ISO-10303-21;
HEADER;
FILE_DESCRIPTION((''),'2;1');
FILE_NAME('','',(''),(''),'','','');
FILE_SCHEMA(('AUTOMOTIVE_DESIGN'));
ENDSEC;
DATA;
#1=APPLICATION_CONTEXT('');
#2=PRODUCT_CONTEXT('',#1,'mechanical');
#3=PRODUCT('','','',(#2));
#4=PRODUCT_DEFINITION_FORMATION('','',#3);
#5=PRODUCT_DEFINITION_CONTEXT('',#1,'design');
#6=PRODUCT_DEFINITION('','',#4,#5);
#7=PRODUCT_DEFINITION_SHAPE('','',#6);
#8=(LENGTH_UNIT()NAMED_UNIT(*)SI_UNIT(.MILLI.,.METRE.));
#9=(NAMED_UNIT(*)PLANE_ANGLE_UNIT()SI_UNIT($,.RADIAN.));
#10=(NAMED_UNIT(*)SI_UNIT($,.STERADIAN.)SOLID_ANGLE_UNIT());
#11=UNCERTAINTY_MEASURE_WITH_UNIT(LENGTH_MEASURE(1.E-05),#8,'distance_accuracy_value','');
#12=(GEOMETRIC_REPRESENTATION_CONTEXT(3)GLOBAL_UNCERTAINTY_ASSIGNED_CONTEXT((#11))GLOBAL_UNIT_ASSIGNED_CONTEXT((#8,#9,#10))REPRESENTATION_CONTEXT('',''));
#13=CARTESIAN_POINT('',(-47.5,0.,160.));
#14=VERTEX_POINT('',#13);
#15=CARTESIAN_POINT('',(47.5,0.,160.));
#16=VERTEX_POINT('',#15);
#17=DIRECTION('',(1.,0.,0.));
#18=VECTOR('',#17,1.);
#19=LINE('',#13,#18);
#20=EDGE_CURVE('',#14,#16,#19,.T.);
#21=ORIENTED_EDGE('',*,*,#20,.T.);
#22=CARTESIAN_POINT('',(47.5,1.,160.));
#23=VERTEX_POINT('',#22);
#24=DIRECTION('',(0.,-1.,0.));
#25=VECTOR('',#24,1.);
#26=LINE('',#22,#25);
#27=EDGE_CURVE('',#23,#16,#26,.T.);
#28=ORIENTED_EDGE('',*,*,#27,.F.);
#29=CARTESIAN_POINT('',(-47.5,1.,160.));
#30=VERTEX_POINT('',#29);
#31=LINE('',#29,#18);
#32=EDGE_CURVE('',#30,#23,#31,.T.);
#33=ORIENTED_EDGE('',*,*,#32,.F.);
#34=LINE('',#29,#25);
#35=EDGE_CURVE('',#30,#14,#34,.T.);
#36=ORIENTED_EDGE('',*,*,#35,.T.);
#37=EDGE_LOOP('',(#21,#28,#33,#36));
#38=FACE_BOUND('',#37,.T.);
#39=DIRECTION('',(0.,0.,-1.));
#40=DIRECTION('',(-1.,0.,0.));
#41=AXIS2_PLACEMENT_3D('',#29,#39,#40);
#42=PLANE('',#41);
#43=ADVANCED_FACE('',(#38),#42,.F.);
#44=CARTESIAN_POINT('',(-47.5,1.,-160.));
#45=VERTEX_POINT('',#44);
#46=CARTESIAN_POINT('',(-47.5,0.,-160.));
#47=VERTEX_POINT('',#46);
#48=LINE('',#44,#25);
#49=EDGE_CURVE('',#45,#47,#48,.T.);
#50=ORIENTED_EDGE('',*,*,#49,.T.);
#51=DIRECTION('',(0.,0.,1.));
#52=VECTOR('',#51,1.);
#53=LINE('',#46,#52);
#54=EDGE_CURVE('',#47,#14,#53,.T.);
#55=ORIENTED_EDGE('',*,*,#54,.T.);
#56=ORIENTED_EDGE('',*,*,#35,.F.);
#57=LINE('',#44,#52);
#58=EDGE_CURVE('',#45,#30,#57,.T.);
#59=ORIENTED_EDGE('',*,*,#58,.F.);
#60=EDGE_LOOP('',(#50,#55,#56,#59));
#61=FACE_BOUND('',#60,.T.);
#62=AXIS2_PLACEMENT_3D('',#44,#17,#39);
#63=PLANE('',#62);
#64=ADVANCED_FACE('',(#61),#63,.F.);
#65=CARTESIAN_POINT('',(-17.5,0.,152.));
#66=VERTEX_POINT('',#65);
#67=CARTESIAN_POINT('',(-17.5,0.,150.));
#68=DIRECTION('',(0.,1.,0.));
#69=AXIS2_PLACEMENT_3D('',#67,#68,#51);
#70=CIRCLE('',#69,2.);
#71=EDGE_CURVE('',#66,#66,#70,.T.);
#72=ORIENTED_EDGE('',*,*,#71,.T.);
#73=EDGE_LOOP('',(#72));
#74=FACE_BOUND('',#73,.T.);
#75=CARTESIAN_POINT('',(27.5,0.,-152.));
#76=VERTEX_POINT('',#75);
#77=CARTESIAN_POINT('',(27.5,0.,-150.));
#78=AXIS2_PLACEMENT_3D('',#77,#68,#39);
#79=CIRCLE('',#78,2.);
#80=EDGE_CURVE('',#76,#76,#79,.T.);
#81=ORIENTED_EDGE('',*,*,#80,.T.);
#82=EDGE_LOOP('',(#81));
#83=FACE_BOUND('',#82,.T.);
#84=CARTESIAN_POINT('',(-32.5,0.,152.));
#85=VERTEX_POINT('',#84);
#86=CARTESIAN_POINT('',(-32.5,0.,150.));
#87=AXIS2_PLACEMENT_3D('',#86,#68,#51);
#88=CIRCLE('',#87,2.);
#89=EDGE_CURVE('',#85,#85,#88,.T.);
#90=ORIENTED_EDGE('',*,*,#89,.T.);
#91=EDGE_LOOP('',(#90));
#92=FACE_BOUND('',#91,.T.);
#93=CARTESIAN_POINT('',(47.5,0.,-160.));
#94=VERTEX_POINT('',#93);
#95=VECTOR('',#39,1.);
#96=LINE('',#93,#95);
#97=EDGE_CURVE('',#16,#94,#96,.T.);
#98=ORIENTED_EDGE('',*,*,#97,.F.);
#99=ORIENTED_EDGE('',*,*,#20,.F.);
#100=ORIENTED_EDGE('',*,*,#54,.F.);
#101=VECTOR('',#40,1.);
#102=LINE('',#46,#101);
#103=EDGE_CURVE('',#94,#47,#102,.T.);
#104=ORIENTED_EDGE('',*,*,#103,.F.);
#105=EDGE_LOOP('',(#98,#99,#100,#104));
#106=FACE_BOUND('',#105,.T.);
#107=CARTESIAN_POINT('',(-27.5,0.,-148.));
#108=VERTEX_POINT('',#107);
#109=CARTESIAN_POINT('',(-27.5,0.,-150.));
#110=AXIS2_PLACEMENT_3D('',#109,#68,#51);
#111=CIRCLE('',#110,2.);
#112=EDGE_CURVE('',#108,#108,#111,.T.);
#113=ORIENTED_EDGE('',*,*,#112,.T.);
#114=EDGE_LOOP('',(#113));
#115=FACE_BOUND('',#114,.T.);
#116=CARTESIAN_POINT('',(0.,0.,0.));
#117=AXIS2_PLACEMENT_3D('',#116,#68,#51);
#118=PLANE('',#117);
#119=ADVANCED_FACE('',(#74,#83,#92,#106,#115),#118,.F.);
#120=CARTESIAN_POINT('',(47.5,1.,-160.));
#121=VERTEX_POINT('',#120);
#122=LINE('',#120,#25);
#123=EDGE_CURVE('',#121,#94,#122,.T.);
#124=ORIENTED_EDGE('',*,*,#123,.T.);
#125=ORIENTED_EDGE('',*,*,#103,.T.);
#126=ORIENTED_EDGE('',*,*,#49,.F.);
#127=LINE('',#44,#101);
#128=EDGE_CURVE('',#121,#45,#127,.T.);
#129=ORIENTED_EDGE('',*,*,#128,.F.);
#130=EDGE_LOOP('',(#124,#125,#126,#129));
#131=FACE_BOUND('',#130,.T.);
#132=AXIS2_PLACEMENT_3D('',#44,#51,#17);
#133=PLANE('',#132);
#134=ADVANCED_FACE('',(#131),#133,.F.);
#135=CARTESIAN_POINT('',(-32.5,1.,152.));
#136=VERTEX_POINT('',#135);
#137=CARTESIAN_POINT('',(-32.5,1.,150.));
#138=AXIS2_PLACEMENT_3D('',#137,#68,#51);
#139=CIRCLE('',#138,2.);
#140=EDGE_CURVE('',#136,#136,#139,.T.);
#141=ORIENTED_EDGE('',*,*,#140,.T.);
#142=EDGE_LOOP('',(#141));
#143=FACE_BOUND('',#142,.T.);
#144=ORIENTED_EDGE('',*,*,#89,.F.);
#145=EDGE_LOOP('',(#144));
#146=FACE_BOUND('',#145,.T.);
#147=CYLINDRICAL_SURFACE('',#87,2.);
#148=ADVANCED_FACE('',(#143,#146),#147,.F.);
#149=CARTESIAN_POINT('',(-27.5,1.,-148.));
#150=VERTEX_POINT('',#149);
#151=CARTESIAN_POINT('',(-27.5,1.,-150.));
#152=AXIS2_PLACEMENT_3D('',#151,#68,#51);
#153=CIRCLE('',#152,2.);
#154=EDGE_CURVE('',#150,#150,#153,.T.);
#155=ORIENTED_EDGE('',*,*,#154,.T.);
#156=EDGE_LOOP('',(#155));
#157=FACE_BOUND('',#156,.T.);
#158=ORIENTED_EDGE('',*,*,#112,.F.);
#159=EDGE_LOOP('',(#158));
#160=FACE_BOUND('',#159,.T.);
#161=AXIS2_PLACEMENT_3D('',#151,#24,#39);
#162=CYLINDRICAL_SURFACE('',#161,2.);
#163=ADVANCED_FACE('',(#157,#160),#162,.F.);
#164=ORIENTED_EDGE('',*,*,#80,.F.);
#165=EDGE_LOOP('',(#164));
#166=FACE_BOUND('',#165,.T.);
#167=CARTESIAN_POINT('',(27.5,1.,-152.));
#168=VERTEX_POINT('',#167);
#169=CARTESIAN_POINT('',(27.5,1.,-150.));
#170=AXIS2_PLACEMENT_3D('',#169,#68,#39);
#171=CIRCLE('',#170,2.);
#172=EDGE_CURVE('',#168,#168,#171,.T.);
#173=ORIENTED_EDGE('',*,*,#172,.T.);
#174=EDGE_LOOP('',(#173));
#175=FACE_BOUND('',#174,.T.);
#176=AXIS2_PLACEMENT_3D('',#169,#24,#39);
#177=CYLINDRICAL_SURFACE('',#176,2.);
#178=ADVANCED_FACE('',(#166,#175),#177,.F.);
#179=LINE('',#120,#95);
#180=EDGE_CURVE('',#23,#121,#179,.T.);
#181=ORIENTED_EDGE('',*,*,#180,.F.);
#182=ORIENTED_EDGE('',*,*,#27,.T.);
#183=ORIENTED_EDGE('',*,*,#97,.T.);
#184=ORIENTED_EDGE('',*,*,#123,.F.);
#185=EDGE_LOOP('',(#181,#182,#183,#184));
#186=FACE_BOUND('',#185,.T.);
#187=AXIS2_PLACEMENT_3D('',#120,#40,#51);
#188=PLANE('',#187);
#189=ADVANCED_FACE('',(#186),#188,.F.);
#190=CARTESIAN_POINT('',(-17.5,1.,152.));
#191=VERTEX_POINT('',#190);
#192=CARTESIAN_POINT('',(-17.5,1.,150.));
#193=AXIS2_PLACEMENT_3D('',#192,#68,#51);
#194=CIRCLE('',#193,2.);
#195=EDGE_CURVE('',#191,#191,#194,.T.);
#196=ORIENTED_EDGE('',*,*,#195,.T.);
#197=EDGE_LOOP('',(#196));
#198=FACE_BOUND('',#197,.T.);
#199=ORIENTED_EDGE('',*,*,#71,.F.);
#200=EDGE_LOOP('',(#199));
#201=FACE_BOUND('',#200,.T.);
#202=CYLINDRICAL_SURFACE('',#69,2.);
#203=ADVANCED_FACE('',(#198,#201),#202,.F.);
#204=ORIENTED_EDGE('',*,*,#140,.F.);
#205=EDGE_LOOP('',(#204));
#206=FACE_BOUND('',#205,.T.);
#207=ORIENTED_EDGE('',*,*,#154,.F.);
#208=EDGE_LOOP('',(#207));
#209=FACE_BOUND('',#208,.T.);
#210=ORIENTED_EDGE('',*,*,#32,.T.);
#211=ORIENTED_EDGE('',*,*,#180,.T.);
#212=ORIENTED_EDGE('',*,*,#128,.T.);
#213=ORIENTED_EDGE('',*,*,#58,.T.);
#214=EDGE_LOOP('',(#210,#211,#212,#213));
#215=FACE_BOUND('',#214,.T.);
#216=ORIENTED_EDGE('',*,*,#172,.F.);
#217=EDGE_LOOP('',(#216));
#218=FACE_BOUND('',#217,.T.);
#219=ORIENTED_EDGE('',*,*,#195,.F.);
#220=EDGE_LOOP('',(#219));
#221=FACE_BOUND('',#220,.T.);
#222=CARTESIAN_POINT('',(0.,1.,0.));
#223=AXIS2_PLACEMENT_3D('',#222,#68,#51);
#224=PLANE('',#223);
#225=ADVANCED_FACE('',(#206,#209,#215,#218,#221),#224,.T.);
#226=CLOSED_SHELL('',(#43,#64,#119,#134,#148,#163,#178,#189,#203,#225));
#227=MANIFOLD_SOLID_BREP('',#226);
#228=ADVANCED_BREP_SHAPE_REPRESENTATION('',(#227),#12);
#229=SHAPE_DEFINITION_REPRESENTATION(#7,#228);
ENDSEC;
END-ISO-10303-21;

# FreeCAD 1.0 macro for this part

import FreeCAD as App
import Part
import Sketcher
from FreeCAD import Vector

doc = App.newDocument("Part")
body = doc.addObject("PartDesign::Body", "Body")

# Sketch on XZ plane
sketch1 = body.newObject("Sketcher::SketchObject", "Sketch")
sketch1.AttachmentSupport = (doc.getObject("XZ_Plane"), [""])
sketch1.MapMode = "FlatFace"
sketch1.addGeometry([
    Part.LineSegment(Vector(-47.5, -160, 0), Vector(-47.5, 160, 0)),  # 0
    Part.LineSegment(Vector(-47.5, 160, 0), Vector(47.5, 160, 0)),  # 1
    Part.LineSegment(Vector(47.5, 160, 0), Vector(47.5, -160, 0)),  # 2
    Part.LineSegment(Vector(47.5, -160, 0), Vector(-47.5, -160, 0)),  # 3
    Part.Circle(Vector(-27.5, -150, 0), Vector(0, 0, 1), 2),  # 4
    Part.Circle(Vector(27.5, -150, 0), Vector(0, 0, 1), 2),  # 5
], False)
sketch1.addConstraint([
    Sketcher.Constraint("Coincident", 0, 2, 1, 1),
    Sketcher.Constraint("Coincident", 1, 2, 2, 1),
    Sketcher.Constraint("Coincident", 2, 2, 3, 1),
    Sketcher.Constraint("Coincident", 3, 2, 0, 1),
    Sketcher.Constraint("Vertical", 0),
    Sketcher.Constraint("Horizontal", 1),
    Sketcher.Constraint("Vertical", 2),
    Sketcher.Constraint("Horizontal", 3),
    Sketcher.Constraint("Equal", 4, 5),
    Sketcher.Constraint("Symmetric", 0, 2, 2, 2, -1, 1),
    Sketcher.Constraint("Symmetric", 4, 3, 5, 3, -2),
    Sketcher.Constraint("Diameter", 4, 4.0),
    Sketcher.Constraint("DistanceX", 1, 1, 1, 2, 95.0),
    Sketcher.Constraint("DistanceY", 0, 1, 0, 2, 320.0),
    Sketcher.Constraint("DistanceY", 4, 3, -1, 1, 150.0),
    Sketcher.Constraint("DistanceX", 4, 3, 5, 3, 55.0),
])
pad1 = body.newObject("PartDesign::Pad", "Pad")
pad1.Profile = sketch1
pad1.Length = 1
pad1.Reversed = True

# Sketch on XZ plane
sketch2 = body.newObject("Sketcher::SketchObject", "Sketch001")
sketch2.AttachmentSupport = (doc.getObject("XZ_Plane"), [""])
sketch2.MapMode = "FlatFace"
sketch2.AttachmentOffset = App.Placement(Vector(0, 0, -1), App.Rotation())
sketch2.addGeometry([
    Part.Circle(Vector(-32.5, 150, 0), Vector(0, 0, 1), 2),
    Part.Circle(Vector(-17.5, 150, 0), Vector(0, 0, 1), 2),
], False)
sketch2.addConstraint([
    Sketcher.Constraint("Equal", 0, 1),
    Sketcher.Constraint("Horizontal", 0, 3, 1, 3),
    Sketcher.Constraint("Diameter", 0, 4.0),
    Sketcher.Constraint("DistanceY", -1, 1, 0, 3, 150.0),
    Sketcher.Constraint("DistanceX", 0, 3, 1, 3, 15.0),
    Sketcher.Constraint("DistanceX", 0, 3, -1, 1, 32.5),
])
pocket1 = body.newObject("PartDesign::Pocket", "Pocket")
pocket1.Profile = sketch2
pocket1.Type = "ThroughAll"
pocket1.Midplane = True

doc.recompute()
